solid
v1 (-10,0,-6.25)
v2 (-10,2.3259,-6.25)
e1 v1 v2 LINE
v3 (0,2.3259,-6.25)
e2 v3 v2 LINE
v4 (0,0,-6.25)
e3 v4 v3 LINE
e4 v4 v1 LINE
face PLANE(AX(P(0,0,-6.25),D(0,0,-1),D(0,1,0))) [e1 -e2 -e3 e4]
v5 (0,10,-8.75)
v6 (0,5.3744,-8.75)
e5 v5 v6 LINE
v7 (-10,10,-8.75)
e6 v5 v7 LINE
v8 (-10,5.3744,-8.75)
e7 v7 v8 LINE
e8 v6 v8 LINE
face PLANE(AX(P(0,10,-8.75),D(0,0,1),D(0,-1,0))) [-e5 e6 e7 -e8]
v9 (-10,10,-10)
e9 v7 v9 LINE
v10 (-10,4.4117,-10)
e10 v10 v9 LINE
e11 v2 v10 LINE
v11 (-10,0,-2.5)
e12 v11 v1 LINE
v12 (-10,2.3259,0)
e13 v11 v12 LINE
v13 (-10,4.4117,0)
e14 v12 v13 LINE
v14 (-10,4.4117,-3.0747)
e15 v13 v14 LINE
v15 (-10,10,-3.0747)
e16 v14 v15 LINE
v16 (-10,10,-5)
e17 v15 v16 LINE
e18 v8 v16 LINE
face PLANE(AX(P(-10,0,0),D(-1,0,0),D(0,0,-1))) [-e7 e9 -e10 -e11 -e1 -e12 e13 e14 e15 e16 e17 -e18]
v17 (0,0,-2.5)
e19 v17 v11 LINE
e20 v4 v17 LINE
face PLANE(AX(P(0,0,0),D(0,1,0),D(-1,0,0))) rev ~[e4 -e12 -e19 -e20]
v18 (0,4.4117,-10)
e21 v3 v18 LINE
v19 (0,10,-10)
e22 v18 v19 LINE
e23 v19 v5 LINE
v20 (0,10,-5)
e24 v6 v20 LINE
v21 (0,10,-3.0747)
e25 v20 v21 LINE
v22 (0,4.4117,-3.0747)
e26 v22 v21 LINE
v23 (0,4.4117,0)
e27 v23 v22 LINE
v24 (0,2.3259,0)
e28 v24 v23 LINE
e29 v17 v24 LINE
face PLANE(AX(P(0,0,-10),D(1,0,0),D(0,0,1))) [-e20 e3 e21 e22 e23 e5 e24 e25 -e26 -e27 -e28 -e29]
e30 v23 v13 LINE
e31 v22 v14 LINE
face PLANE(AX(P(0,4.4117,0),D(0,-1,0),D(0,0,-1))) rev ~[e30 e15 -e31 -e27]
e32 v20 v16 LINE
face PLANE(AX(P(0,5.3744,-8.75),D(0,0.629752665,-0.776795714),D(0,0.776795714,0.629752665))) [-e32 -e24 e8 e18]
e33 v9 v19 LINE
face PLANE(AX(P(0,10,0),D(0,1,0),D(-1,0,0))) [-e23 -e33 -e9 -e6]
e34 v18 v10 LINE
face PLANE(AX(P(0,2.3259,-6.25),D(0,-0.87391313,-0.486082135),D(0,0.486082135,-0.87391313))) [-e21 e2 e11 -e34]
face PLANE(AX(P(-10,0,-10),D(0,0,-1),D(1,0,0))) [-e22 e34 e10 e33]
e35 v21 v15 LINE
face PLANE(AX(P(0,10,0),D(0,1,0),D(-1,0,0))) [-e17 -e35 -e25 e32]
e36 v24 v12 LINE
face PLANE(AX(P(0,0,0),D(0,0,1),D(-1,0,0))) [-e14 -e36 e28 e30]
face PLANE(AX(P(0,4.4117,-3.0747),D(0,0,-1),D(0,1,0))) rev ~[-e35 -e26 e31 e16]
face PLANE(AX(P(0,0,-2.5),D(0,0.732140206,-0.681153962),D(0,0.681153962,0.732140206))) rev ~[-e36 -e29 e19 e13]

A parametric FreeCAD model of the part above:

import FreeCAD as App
import Part
import Sketcher

V = App.Vector


def add_polygon(sketch, points):
    """Adds a closed chain of lines whose ends are joined by coincident constraints."""
    first, n = sketch.GeometryCount, len(points)
    for a, b in zip(points, points[1:] + points[:1]):
        sketch.addGeometry(Part.LineSegment(App.Vector(*a, 0), App.Vector(*b, 0)), False)
    for i in range(n):
        sketch.addConstraint(Sketcher.Constraint("Coincident", first + i, 2, first + (i + 1) % n, 1))

doc = App.newDocument("Part")
body = doc.addObject("PartDesign::Body", "Body")

# Sketch on XZ plane
sketch1 = doc.addObject("Sketcher::SketchObject", "Sketch")
body.addObject(sketch1)
sketch1.AttachmentSupport = (doc.XZ_Plane, [""])
sketch1.MapMode = "FlatFace"
add_polygon(sketch1, [(-10, 0), (0, 0), (0, -10), (-10, -10)])  # lines 0-3
sketch1.addConstraint(Sketcher.Constraint("Horizontal", 0))
sketch1.addConstraint(Sketcher.Constraint("Vertical", 1))
sketch1.addConstraint(Sketcher.Constraint("Horizontal", 2))
sketch1.addConstraint(Sketcher.Constraint("Vertical", 3))
sketch1.addConstraint(Sketcher.Constraint("Coincident", 0, 2, -1, 1))
sketch1.addConstraint(Sketcher.Constraint("Equal", 2, 1))
sketch1.addConstraint(Sketcher.Constraint("DistanceX", 0, 1, 0, 2, 10.0))
pad1 = doc.addObject("PartDesign::Pad", "Pad")
body.addObject(pad1)
pad1.Profile = sketch1
pad1.Length = 10
pad1.Reversed = True

# Sketch on YZ plane
sketch2 = doc.addObject("Sketcher::SketchObject", "Sketch001")
body.addObject(sketch2)
sketch2.AttachmentSupport = (doc.YZ_Plane, [""])
sketch2.MapMode = "FlatFace"
add_polygon(sketch2, [(0, 0), (0, -2.5), (2.3, 0)])  # lines 0-2
sketch2.addConstraint(Sketcher.Constraint("Vertical", 0))
sketch2.addConstraint(Sketcher.Constraint("Horizontal", 2))
sketch2.addConstraint(Sketcher.Constraint("Coincident", 2, 2, -1, 1))
sketch2.addConstraint(Sketcher.Constraint("DistanceY", 0, 2, 0, 1, 2.5))
sketch2.addConstraint(Sketcher.Constraint("DistanceX", 2, 2, 2, 1, 2.326))
pocket1 = doc.addObject("PartDesign::Pocket", "Pocket")
body.addObject(pocket1)
pocket1.Profile = sketch2
pocket1.Length = 10

# Sketch on YZ plane
sketch3 = doc.addObject("Sketcher::SketchObject", "Sketch002")
body.addObject(sketch3)
sketch3.AttachmentSupport = (doc.YZ_Plane, [""])
sketch3.MapMode = "FlatFace"
add_polygon(sketch3, [(0, -6.2), (0, -10), (4.4, -10), (2.3, -6.2)])  # lines 0-3
sketch3.addConstraint(Sketcher.Constraint("Vertical", 0))
sketch3.addConstraint(Sketcher.Constraint("Horizontal", 1))
sketch3.addConstraint(Sketcher.Constraint("Horizontal", 3))
sketch3.addConstraint(Sketcher.Constraint("PointOnObject", 0, 2, -2))
sketch3.addConstraint(Sketcher.Constraint("DistanceY", 0, 2, -1, 1, 10.0))
sketch3.addConstraint(Sketcher.Constraint("DistanceY", 0, 2, 0, 1, 3.75))
sketch3.addConstraint(Sketcher.Constraint("DistanceX", 3, 2, 3, 1, 2.326))
sketch3.addConstraint(Sketcher.Constraint("Distance", 2, 4.291))
pocket2 = doc.addObject("PartDesign::Pocket", "Pocket001")
body.addObject(pocket2)
pocket2.Profile = sketch3
pocket2.Length = 10

# Sketch on YZ plane
sketch4 = doc.addObject("Sketcher::SketchObject", "Sketch003")
body.addObject(sketch4)
sketch4.AttachmentSupport = (doc.YZ_Plane, [""])
sketch4.MapMode = "FlatFace"
add_polygon(sketch4, [(10, -8.8), (10, -5), (5.4, -8.8)])  # lines 0-2
sketch4.addConstraint(Sketcher.Constraint("Vertical", 0))
sketch4.addConstraint(Sketcher.Constraint("Horizontal", 2))
sketch4.addConstraint(Sketcher.Constraint("DistanceX", -1, 1, 0, 2, 10.0))
sketch4.addConstraint(Sketcher.Constraint("DistanceY", 0, 2, -1, 1, 5.0))
sketch4.addConstraint(Sketcher.Constraint("DistanceY", 0, 1, 0, 2, 3.75))
sketch4.addConstraint(Sketcher.Constraint("DistanceX", 2, 1, 2, 2, 4.6256))
pocket3 = doc.addObject("PartDesign::Pocket", "Pocket002")
body.addObject(pocket3)
pocket3.Profile = sketch4
pocket3.Length = 10

# Sketch on YZ plane
sketch5 = doc.addObject("Sketcher::SketchObject", "Sketch004")
body.addObject(sketch5)
sketch5.AttachmentSupport = (doc.YZ_Plane, [""])
sketch5.MapMode = "FlatFace"
add_polygon(sketch5, [(10, -3.1), (10, 0), (4.4, 0), (4.4, -3.1)])  # lines 0-3
sketch5.addConstraint(Sketcher.Constraint("Vertical", 0))
sketch5.addConstraint(Sketcher.Constraint("Horizontal", 1))
sketch5.addConstraint(Sketcher.Constraint("Vertical", 2))
sketch5.addConstraint(Sketcher.Constraint("Horizontal", 3))
sketch5.addConstraint(Sketcher.Constraint("PointOnObject", 0, 2, -1))
sketch5.addConstraint(Sketcher.Constraint("DistanceX", -1, 1, 0, 2, 10.0))
sketch5.addConstraint(Sketcher.Constraint("DistanceX", 1, 2, 1, 1, 5.5883))
sketch5.addConstraint(Sketcher.Constraint("DistanceY", 0, 1, 0, 2, 3.0747))
pocket4 = doc.addObject("PartDesign::Pocket", "Pocket003")
body.addObject(pocket4)
pocket4.Profile = sketch5
pocket4.Length = 10

doc.recompute()
